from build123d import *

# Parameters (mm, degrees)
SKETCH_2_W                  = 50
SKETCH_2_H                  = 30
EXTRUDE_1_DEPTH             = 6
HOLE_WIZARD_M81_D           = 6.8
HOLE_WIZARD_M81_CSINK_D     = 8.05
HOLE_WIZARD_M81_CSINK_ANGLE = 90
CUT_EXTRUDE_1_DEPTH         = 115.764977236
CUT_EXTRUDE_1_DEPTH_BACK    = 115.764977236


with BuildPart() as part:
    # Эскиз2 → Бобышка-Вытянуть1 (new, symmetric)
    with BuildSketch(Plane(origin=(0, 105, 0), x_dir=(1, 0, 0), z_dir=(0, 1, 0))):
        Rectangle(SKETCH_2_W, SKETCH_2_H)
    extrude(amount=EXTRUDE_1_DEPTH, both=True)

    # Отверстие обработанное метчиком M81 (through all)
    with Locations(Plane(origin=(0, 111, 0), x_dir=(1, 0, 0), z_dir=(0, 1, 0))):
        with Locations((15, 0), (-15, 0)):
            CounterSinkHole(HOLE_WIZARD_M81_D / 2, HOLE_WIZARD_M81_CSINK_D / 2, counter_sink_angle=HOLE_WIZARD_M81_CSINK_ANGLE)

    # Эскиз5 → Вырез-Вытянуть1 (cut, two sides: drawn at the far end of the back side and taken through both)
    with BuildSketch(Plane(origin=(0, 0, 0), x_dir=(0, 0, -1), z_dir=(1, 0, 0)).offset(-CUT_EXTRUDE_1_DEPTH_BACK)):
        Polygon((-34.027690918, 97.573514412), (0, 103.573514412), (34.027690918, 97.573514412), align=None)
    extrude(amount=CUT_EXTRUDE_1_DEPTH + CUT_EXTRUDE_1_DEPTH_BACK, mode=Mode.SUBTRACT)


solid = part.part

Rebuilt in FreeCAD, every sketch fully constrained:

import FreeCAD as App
import Part
import Sketcher
from FreeCAD import Vector
Q = App.Units.Quantity


def add_polygon(sketch, points):
    """Adds a closed chain of lines whose ends are joined by coincident constraints."""
    first, n = sketch.GeometryCount, len(points)
    for a, b in zip(points, points[1:] + points[:1]):
        sketch.addGeometry(Part.LineSegment(App.Vector(*a, 0), App.Vector(*b, 0)), False)
    for i in range(n):
        sketch.addConstraint(Sketcher.Constraint("Coincident", first + i, 2, first + (i + 1) % n, 1))

doc = App.newDocument("Part")
body = doc.addObject("PartDesign::Body", "Body")

sketch1 = doc.addObject("Sketcher::SketchObject", "Sketch")
body.addObject(sketch1)
sketch1.AttachmentSupport = (doc.XZ_Plane, [""])
sketch1.MapMode = "FlatFace"
sketch1.AttachmentOffset = App.Placement(Vector(0, 0, -105), App.Rotation())
add_polygon(sketch1, [(-25, -15), (-25, 15), (25, 15), (25, -15)])
sketch1.addConstraint([
    Sketcher.Constraint("Vertical", 0),
    Sketcher.Constraint("Horizontal", 1),
    Sketcher.Constraint("Vertical", 2),
    Sketcher.Constraint("Horizontal", 3),
    Sketcher.Constraint("Symmetric", 0, 2, 2, 2, -1, 1),
    Sketcher.Constraint("DistanceX", 1, 1, 1, 2, Q("50 mm")),
    Sketcher.Constraint("DistanceY", 0, 1, 0, 2, Q("30 mm")),
])
pad1 = doc.addObject("PartDesign::Pad", "Pad")
body.addObject(pad1)
pad1.Profile = sketch1
pad1.Length = 12
pad1.Midplane = True

sketch2 = doc.addObject("Sketcher::SketchObject", "Sketch001")
body.addObject(sketch2)
sketch2.AttachmentSupport = (doc.XZ_Plane, [""])
sketch2.MapMode = "FlatFace"
sketch2.AttachmentOffset = App.Placement(Vector(0, 0, -111), App.Rotation())
sketch2.addGeometry([
    Part.Circle(Vector(15, 0, 0), Vector(0, 0, 1), 3.4),
    Part.Circle(Vector(-15, 0, 0), Vector(0, 0, 1), 3.4),
], False)
sketch2.addConstraint([
    Sketcher.Constraint("Equal", 0, 1),
    Sketcher.Constraint("Symmetric", 0, 3, 1, 3, -1, 1),
    Sketcher.Constraint("PointOnObject", 0, 3, -1),
    Sketcher.Constraint("Diameter", 0, Q("6.8 mm")),
    Sketcher.Constraint("DistanceX", -1, 1, 0, 3, Q("15 mm")),
])
doc.recompute()
hole = doc.addObject("PartDesign::Hole", "Hole")
body.addObject(hole)
hole.Profile = sketch2
hole.ThreadType = "None"
hole.Diameter = 6.8
hole.DepthType = "ThroughAll"
hole.HoleCutType = "Countersink"
hole.HoleCutDiameter = 8.05
hole.HoleCutCountersinkAngle = 90
hole.Reversed = True

sketch3 = doc.addObject("Sketcher::SketchObject", "Sketch002")
body.addObject(sketch3)
sketch3.AttachmentSupport = (doc.YZ_Plane, [""])
sketch3.MapMode = "FlatFace"
add_polygon(sketch3, [(103.573514, 0), (97.573514, 34.027691), (97.573514, -34.027691)])
sketch3.addConstraint([
    Sketcher.Constraint("Vertical", 1),
    Sketcher.Constraint("PointOnObject", 2, 2, -1),
    Sketcher.Constraint("Equal", 0, 2),
    Sketcher.Constraint("Angle", 0, Q("100 deg")),
    Sketcher.Constraint("DistanceX", 0, 2, 2, 2, Q("6 mm")),
    Sketcher.Constraint("DistanceX", -1, 1, 0, 2, Q("97.573514 mm")),
])
pocket1 = doc.addObject("PartDesign::Pocket", "Pocket")
body.addObject(pocket1)
pocket1.Profile = sketch3
pocket1.Type = "ThroughAll"
pocket1.Midplane = True

doc.recompute()
